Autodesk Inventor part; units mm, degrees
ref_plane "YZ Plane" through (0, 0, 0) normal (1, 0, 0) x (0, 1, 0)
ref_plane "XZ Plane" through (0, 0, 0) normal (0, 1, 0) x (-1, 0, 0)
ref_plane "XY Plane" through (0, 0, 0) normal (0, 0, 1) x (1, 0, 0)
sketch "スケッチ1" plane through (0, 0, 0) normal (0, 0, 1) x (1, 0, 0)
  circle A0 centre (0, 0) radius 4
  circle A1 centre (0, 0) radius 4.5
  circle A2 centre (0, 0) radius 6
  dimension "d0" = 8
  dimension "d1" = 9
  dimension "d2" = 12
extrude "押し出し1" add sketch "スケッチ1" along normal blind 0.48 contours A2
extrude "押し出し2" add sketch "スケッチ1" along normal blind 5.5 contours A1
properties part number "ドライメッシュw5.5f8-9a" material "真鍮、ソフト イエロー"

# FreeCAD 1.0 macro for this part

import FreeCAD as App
import Part
import Sketcher

V = App.Vector

doc = App.newDocument("Part")
body = doc.addObject("PartDesign::Body", "Body")

# Sketch on XY plane
sketch1 = body.newObject("Sketcher::SketchObject", "Sketch")
sketch1.AttachmentSupport = (doc.getObject("XY_Plane"), [""])
sketch1.MapMode = "FlatFace"
sketch1.addGeometry([
    Part.Circle(V(0, 0, 0), V(0, 0, 1), 6),
    Part.Circle(V(0, 0, 0), V(0, 0, 1), 4.5),
], False)
sketch1.addConstraint([
    Sketcher.Constraint("Coincident", 0, 3, -1, 1),
    Sketcher.Constraint("Coincident", 1, 3, -1, 1),
    Sketcher.Constraint("Diameter", 0, 12.0),
    Sketcher.Constraint("Diameter", 1, 9.0),
])
pad1 = body.newObject("PartDesign::Pad", "Pad")
pad1.Profile = sketch1
pad1.Length = 0.48

# Sketch on XY plane
sketch2 = body.newObject("Sketcher::SketchObject", "Sketch001")
sketch2.AttachmentSupport = (doc.getObject("XY_Plane"), [""])
sketch2.MapMode = "FlatFace"
sketch2.addGeometry([
    Part.Circle(V(0, 0, 0), V(0, 0, 1), 4.5),
    Part.Circle(V(0, 0, 0), V(0, 0, 1), 4),
], False)
sketch2.addConstraint([
    Sketcher.Constraint("Coincident", 0, 3, -1, 1),
    Sketcher.Constraint("Coincident", 1, 3, -1, 1),
    Sketcher.Constraint("Diameter", 0, 9.0),
    Sketcher.Constraint("Diameter", 1, 8.0),
])
pad2 = body.newObject("PartDesign::Pad", "Pad001")
pad2.Profile = sketch2
pad2.Length = 5.5

doc.recompute()
